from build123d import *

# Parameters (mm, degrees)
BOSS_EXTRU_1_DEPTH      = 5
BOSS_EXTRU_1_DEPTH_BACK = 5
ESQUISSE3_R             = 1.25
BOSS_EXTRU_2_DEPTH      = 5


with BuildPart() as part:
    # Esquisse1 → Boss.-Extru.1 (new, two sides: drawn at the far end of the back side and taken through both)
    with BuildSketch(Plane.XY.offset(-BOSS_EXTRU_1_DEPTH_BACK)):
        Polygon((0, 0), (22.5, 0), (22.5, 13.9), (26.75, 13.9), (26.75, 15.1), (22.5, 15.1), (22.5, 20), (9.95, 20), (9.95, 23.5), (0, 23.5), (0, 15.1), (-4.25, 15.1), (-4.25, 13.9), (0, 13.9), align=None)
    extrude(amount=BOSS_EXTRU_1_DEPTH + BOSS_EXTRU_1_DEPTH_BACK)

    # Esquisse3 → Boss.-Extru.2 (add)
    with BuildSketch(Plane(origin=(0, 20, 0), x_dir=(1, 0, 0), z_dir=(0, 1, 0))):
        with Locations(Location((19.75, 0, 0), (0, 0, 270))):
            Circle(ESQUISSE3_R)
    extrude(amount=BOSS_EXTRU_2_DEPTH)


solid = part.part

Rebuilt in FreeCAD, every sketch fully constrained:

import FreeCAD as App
import Part
import Sketcher
Q = App.Units.Quantity


def add_polygon(sketch, points):
    """Adds a closed chain of lines whose ends are joined by coincident constraints."""
    first, n = sketch.GeometryCount, len(points)
    for a, b in zip(points, points[1:] + points[:1]):
        sketch.addGeometry(Part.LineSegment(App.Vector(*a, 0), App.Vector(*b, 0)), False)
    for i in range(n):
        sketch.addConstraint(Sketcher.Constraint("Coincident", first + i, 2, first + (i + 1) % n, 1))

doc = App.newDocument("Part")
body = doc.addObject("PartDesign::Body", "Body")

# Sketch on XY plane
sketch1 = doc.addObject("Sketcher::SketchObject", "Sketch")
body.addObject(sketch1)
sketch1.AttachmentSupport = (doc.XY_Plane, [""])
sketch1.MapMode = "FlatFace"
add_polygon(sketch1, [(0, 0), (22.5, 0), (22.5, 13.9), (26.8, 13.9), (26.8, 15.1), (22.5, 15.1), (22.5, 20), (9.9, 20), (9.9, 23.5), (0, 23.5), (0, 15.1), (-4.2, 15.1), (-4.2, 13.9), (0, 13.9)])  # lines 0-13
sketch1.addConstraint(Sketcher.Constraint("Horizontal", 0))
sketch1.addConstraint(Sketcher.Constraint("Vertical", 1))
sketch1.addConstraint(Sketcher.Constraint("Horizontal", 2))
sketch1.addConstraint(Sketcher.Constraint("Vertical", 3))
sketch1.addConstraint(Sketcher.Constraint("Horizontal", 4))
sketch1.addConstraint(Sketcher.Constraint("Vertical", 5))
sketch1.addConstraint(Sketcher.Constraint("Horizontal", 6))
sketch1.addConstraint(Sketcher.Constraint("Vertical", 7))
sketch1.addConstraint(Sketcher.Constraint("Horizontal", 8))
sketch1.addConstraint(Sketcher.Constraint("Vertical", 9))
sketch1.addConstraint(Sketcher.Constraint("Horizontal", 10))
sketch1.addConstraint(Sketcher.Constraint("Vertical", 11))
sketch1.addConstraint(Sketcher.Constraint("Horizontal", 12))
sketch1.addConstraint(Sketcher.Constraint("Vertical", 13))
sketch1.addConstraint(Sketcher.Constraint("Coincident", 13, 2, -1, 1))
sketch1.addConstraint(Sketcher.Constraint("PointOnObject", 8, 2, -2))
sketch1.addConstraint(Sketcher.Constraint("Horizontal", 4, 2, 9, 2))
sketch1.addConstraint(Sketcher.Constraint("Horizontal", 2, 2, 11, 2))
sketch1.addConstraint(Sketcher.Constraint("Vertical", 1, 2, 4, 2))
sketch1.addConstraint(Sketcher.Constraint("Equal", 4, 10))
sketch1.addConstraint(Sketcher.Constraint("DistanceX", 0, 1, 0, 2, Q("22.5 mm")))
sketch1.addConstraint(Sketcher.Constraint("DistanceY", 1, 1, 1, 2, Q("13.9 mm")))
sketch1.addConstraint(Sketcher.Constraint("DistanceY", 3, 1, 3, 2, Q("1.2 mm")))
sketch1.addConstraint(Sketcher.Constraint("DistanceY", 5, 1, 5, 2, Q("4.9 mm")))
sketch1.addConstraint(Sketcher.Constraint("DistanceY", 7, 1, 7, 2, Q("3.5 mm")))
sketch1.addConstraint(Sketcher.Constraint("DistanceX", 2, 1, 2, 2, Q("4.25 mm")))
sketch1.addConstraint(Sketcher.Constraint("DistanceX", 6, 2, 6, 1, Q("12.55 mm")))
pad1 = doc.addObject("PartDesign::Pad", "Pad")
body.addObject(pad1)
pad1.Profile = sketch1
pad1.Type = "TwoLengths"
pad1.Length = 5
pad1.Length2 = 5

# Sketch on XZ plane
sketch2 = doc.addObject("Sketcher::SketchObject", "Sketch001")
body.addObject(sketch2)
sketch2.AttachmentSupport = (doc.XZ_Plane, [""])
sketch2.MapMode = "FlatFace"
sketch2.AttachmentOffset = App.Placement(App.Vector(0, 0, -20), App.Rotation())
sketch2.addGeometry(Part.Circle(App.Vector(19.8, 0, 0), App.Vector(0, 0, 1), 1.2), False)
sketch2.addConstraint(Sketcher.Constraint("PointOnObject", 0, 3, -1))
sketch2.addConstraint(Sketcher.Constraint("Diameter", 0, Q("2.5 mm")))
sketch2.addConstraint(Sketcher.Constraint("DistanceX", -1, 1, 0, 3, Q("19.75 mm")))
pad2 = doc.addObject("PartDesign::Pad", "Pad001")
body.addObject(pad2)
pad2.Profile = sketch2
pad2.Length = 5
pad2.Reversed = True

doc.recompute()
